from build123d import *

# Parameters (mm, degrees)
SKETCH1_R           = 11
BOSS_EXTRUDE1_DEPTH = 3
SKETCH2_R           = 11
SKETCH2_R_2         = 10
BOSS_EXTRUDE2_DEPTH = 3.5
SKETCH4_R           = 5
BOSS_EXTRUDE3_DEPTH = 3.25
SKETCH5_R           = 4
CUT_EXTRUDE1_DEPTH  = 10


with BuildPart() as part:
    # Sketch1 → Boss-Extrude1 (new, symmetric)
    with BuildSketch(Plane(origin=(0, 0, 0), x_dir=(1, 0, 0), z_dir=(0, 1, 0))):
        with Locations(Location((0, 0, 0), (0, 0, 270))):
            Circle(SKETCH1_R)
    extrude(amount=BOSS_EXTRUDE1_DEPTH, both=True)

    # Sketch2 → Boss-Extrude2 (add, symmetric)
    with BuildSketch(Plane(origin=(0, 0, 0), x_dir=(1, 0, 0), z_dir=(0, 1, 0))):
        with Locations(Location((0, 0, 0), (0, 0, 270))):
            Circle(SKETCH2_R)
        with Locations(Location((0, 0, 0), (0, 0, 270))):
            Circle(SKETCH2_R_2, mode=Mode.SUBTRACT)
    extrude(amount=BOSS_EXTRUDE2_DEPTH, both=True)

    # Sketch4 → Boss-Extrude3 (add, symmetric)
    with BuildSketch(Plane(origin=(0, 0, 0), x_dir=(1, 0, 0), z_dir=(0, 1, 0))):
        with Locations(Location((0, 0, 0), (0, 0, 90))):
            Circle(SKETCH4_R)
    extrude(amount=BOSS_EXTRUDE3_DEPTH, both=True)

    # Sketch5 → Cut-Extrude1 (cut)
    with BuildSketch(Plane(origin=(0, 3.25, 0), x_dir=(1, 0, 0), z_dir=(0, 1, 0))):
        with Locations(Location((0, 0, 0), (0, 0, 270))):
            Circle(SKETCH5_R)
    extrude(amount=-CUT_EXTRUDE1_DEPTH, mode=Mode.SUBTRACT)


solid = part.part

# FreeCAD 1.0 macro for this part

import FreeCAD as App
import Part
import Sketcher

doc = App.newDocument("Part")
body = doc.addObject("PartDesign::Body", "Body")

sketch1 = body.newObject("Sketcher::SketchObject", "Sketch")
sketch1.AttachmentSupport = (doc.getObject("XZ_Plane"), [""])
sketch1.MapMode = "FlatFace"
sketch1.addGeometry(Part.Circle(App.Vector(0, 0, 0), App.Vector(0, 0, 1), 11), False)
sketch1.addConstraint(Sketcher.Constraint("Coincident", 0, 3, -1, 1))
sketch1.addConstraint(Sketcher.Constraint("Diameter", 0, 22.0))
pad1 = body.newObject("PartDesign::Pad", "Pad")
pad1.Profile = sketch1
pad1.Length = 6
pad1.Midplane = True

sketch2 = body.newObject("Sketcher::SketchObject", "Sketch001")
sketch2.AttachmentSupport = (doc.getObject("XZ_Plane"), [""])
sketch2.MapMode = "FlatFace"
sketch2.addGeometry(Part.Circle(App.Vector(0, 0, 0), App.Vector(0, 0, 1), 11), False)
sketch2.addGeometry(Part.Circle(App.Vector(0, 0, 0), App.Vector(0, 0, 1), 10), False)
sketch2.addConstraint(Sketcher.Constraint("Coincident", 0, 3, -1, 1))
sketch2.addConstraint(Sketcher.Constraint("Coincident", 1, 3, -1, 1))
sketch2.addConstraint(Sketcher.Constraint("Diameter", 0, 22.0))
sketch2.addConstraint(Sketcher.Constraint("Diameter", 1, 20.0))
pad2 = body.newObject("PartDesign::Pad", "Pad001")
pad2.Profile = sketch2
pad2.Length = 7
pad2.Midplane = True

sketch3 = body.newObject("Sketcher::SketchObject", "Sketch002")
sketch3.AttachmentSupport = (doc.getObject("XZ_Plane"), [""])
sketch3.MapMode = "FlatFace"
sketch3.addGeometry(Part.Circle(App.Vector(0, 0, 0), App.Vector(0, 0, 1), 5), False)
sketch3.addConstraint(Sketcher.Constraint("Coincident", 0, 3, -1, 1))
sketch3.addConstraint(Sketcher.Constraint("Diameter", 0, 10.0))
pad3 = body.newObject("PartDesign::Pad", "Pad002")
pad3.Profile = sketch3
pad3.Length = 6.5
pad3.Midplane = True

sketch4 = body.newObject("Sketcher::SketchObject", "Sketch003")
sketch4.AttachmentSupport = (doc.getObject("XZ_Plane"), [""])
sketch4.MapMode = "FlatFace"
sketch4.AttachmentOffset = App.Placement(App.Vector(0, 0, -3.25), App.Rotation())
sketch4.addGeometry(Part.Circle(App.Vector(0, 0, 0), App.Vector(0, 0, 1), 4), False)
sketch4.addConstraint(Sketcher.Constraint("Coincident", 0, 3, -1, 1))
sketch4.addConstraint(Sketcher.Constraint("Diameter", 0, 8.0))
pocket1 = body.newObject("PartDesign::Pocket", "Pocket")
pocket1.Profile = sketch4
pocket1.Length = 10
pocket1.Reversed = True

doc.recompute()
